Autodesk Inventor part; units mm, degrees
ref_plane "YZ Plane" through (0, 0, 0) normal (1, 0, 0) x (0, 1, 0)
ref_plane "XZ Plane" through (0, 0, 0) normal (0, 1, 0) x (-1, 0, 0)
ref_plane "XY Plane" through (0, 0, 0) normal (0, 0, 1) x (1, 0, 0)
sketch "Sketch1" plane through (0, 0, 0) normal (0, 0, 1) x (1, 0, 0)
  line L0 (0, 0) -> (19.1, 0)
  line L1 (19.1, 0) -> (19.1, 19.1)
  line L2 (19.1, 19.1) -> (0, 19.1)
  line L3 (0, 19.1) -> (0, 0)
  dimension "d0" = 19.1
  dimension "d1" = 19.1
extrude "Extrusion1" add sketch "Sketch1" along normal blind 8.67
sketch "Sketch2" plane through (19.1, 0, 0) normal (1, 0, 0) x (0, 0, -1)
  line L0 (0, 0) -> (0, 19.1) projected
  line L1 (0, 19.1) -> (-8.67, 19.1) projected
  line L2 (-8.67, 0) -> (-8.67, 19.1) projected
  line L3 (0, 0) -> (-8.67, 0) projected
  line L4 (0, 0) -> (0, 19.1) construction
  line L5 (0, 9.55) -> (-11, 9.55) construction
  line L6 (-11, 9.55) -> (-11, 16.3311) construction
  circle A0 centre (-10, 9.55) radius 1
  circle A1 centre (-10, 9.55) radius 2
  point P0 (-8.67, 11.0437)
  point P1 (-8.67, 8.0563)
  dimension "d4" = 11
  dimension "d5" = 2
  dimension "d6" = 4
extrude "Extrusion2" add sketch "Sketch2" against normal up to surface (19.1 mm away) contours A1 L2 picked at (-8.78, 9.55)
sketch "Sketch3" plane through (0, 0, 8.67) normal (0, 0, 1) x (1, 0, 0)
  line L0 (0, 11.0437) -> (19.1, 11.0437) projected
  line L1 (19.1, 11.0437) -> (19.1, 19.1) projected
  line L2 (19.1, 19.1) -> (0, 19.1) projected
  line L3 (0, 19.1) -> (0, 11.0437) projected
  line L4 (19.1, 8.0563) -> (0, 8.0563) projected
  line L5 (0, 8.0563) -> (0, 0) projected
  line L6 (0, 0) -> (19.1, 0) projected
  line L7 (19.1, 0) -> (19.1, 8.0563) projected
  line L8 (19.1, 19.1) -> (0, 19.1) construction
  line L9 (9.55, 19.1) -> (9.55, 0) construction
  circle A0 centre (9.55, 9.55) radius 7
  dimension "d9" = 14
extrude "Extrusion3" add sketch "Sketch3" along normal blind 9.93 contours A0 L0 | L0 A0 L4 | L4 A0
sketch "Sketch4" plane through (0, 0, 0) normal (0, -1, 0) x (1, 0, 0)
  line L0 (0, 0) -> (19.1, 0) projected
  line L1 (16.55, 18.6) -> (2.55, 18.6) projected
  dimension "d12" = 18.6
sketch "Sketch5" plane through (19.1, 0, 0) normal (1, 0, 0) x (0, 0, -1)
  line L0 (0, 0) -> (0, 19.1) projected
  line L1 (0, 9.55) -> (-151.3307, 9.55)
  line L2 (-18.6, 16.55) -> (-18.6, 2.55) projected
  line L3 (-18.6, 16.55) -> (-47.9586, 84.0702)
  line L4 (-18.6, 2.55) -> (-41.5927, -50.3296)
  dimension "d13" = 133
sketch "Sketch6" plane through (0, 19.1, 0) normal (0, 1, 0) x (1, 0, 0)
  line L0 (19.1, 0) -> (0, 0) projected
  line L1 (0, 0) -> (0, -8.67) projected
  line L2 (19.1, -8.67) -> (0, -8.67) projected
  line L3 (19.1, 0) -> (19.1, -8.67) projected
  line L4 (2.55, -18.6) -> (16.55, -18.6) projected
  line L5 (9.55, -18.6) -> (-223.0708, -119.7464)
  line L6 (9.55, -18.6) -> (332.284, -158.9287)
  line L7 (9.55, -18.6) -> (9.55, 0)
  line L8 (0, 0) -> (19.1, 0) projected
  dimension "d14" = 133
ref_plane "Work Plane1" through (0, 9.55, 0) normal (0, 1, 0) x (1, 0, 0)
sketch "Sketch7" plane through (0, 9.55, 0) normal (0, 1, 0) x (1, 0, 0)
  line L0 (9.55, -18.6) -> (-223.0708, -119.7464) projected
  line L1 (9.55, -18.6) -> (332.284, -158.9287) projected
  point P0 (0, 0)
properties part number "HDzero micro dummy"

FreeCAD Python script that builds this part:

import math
import FreeCAD as App
import Part
import Sketcher
from FreeCAD import Vector
Q = App.Units.Quantity


def add_polygon(sketch, points):
    """Adds a closed chain of lines whose ends are joined by coincident constraints."""
    first, n = sketch.GeometryCount, len(points)
    for a, b in zip(points, points[1:] + points[:1]):
        sketch.addGeometry(Part.LineSegment(App.Vector(*a, 0), App.Vector(*b, 0)), False)
    for i in range(n):
        sketch.addConstraint(Sketcher.Constraint("Coincident", first + i, 2, first + (i + 1) % n, 1))

doc = App.newDocument("Part")
params = doc.addObject("Spreadsheet::Sheet", "Params")
for row, (alias, value) in enumerate([
    ("sketch1_width", "19.1 mm"),
    ("pad1_length", "8.67 mm"),
    ("sketch2_diameter", "2 mm"),
    ("sketch2_radius", "2 mm"),
    ("pad2_length", "19.1 mm"),
    ("sketch3_diameter", "14 mm"),
    ("pad3_length", "9.93 mm"),
], start=1):
    params.set(f"A{row}", alias)
    params.set(f"B{row}", "=" + value)
    params.setAlias(f"B{row}", alias)

body = doc.addObject("PartDesign::Body", "Body")

# Sketch on XY plane
sketch1 = doc.addObject("Sketcher::SketchObject", "Sketch")
body.addObject(sketch1)
sketch1.AttachmentSupport = (doc.XY_Plane, [""])
sketch1.MapMode = "FlatFace"
add_polygon(sketch1, [(0, 19.1), (0, 0), (19.1, 0), (19.1, 19.1)])  # lines 0-3
sketch1.addConstraint([
    Sketcher.Constraint("Vertical", 0),
    Sketcher.Constraint("Horizontal", 1),
    Sketcher.Constraint("Vertical", 2),
    Sketcher.Constraint("Horizontal", 3),
    Sketcher.Constraint("Coincident", 0, 2, -1, 1),
    Sketcher.Constraint("Equal", 3, 0),
    Sketcher.Constraint("DistanceX", 1, 1, 1, 2, Q("19.1 mm")),
])
sketch1.setExpression("Constraints[10]", "Params.sketch1_width")
pad1 = doc.addObject("PartDesign::Pad", "Pad")
body.addObject(pad1)
pad1.Profile = sketch1
pad1.setExpression("Length", "Params.pad1_length")

# Sketch on YZ plane
sketch2 = doc.addObject("Sketcher::SketchObject", "Sketch001")
body.addObject(sketch2)
sketch2.AttachmentSupport = (doc.YZ_Plane, [""])
sketch2.MapMode = "FlatFace"
sketch2.AttachmentOffset = App.Placement(Vector(0, 0, 19.1), App.Rotation())
sketch2.addGeometry([
    Part.ArcOfCircle(Part.Circle(Vector(9.55, 10, 0), Vector(0, 0, 1), 2), math.radians(-41.682325), math.radians(221.682325)),
    Part.LineSegment(Vector(8.056313, 8.67, 0), Vector(11.043687, 8.67, 0)),
    Part.Circle(Vector(9.55, 10, 0), Vector(0, 0, 1), 1),
], False)
sketch2.addConstraint([
    Sketcher.Constraint("Coincident", 0, 1, 1, 2),
    Sketcher.Constraint("Coincident", 1, 1, 0, 2),
    Sketcher.Constraint("Horizontal", 1),
    Sketcher.Constraint("Coincident", 2, 3, 0, 3),
    Sketcher.Constraint("Diameter", 2, Q("2 mm")),
    Sketcher.Constraint("Radius", 0, Q("2 mm")),
    Sketcher.Constraint("DistanceY", -1, 1, 0, 3, Q("10 mm")),
    Sketcher.Constraint("DistanceX", -1, 1, 0, 3, Q("9.55 mm")),
    Sketcher.Constraint("DistanceY", -1, 1, 0, 1, Q("8.67 mm")),
])
sketch2.setExpression("Constraints[4]", "Params.sketch2_diameter")
sketch2.setExpression("Constraints[5]", "Params.sketch2_radius")
pad2 = doc.addObject("PartDesign::Pad", "Pad001")
body.addObject(pad2)
pad2.Profile = sketch2
pad2.setExpression("Length", "Params.pad2_length")
pad2.Reversed = True

# Sketch on XY plane
sketch3 = doc.addObject("Sketcher::SketchObject", "Sketch002")
body.addObject(sketch3)
sketch3.AttachmentSupport = (doc.XY_Plane, [""])
sketch3.MapMode = "FlatFace"
sketch3.AttachmentOffset = App.Placement(Vector(0, 0, 8.67), App.Rotation())
sketch3.addGeometry(Part.Circle(Vector(9.55, 9.55, 0), Vector(0, 0, 1), 7), False)
sketch3.addConstraint([
    Sketcher.Constraint("Diameter", 0, Q("14 mm")),
    Sketcher.Constraint("DistanceX", -1, 1, 0, 3, Q("9.55 mm")),
    Sketcher.Constraint("DistanceY", -1, 1, 0, 3, Q("9.55 mm")),
])
sketch3.setExpression("Constraints[0]", "Params.sketch3_diameter")
pad3 = doc.addObject("PartDesign::Pad", "Pad002")
body.addObject(pad3)
pad3.Profile = sketch3
pad3.setExpression("Length", "Params.pad3_length")

doc.recompute()
